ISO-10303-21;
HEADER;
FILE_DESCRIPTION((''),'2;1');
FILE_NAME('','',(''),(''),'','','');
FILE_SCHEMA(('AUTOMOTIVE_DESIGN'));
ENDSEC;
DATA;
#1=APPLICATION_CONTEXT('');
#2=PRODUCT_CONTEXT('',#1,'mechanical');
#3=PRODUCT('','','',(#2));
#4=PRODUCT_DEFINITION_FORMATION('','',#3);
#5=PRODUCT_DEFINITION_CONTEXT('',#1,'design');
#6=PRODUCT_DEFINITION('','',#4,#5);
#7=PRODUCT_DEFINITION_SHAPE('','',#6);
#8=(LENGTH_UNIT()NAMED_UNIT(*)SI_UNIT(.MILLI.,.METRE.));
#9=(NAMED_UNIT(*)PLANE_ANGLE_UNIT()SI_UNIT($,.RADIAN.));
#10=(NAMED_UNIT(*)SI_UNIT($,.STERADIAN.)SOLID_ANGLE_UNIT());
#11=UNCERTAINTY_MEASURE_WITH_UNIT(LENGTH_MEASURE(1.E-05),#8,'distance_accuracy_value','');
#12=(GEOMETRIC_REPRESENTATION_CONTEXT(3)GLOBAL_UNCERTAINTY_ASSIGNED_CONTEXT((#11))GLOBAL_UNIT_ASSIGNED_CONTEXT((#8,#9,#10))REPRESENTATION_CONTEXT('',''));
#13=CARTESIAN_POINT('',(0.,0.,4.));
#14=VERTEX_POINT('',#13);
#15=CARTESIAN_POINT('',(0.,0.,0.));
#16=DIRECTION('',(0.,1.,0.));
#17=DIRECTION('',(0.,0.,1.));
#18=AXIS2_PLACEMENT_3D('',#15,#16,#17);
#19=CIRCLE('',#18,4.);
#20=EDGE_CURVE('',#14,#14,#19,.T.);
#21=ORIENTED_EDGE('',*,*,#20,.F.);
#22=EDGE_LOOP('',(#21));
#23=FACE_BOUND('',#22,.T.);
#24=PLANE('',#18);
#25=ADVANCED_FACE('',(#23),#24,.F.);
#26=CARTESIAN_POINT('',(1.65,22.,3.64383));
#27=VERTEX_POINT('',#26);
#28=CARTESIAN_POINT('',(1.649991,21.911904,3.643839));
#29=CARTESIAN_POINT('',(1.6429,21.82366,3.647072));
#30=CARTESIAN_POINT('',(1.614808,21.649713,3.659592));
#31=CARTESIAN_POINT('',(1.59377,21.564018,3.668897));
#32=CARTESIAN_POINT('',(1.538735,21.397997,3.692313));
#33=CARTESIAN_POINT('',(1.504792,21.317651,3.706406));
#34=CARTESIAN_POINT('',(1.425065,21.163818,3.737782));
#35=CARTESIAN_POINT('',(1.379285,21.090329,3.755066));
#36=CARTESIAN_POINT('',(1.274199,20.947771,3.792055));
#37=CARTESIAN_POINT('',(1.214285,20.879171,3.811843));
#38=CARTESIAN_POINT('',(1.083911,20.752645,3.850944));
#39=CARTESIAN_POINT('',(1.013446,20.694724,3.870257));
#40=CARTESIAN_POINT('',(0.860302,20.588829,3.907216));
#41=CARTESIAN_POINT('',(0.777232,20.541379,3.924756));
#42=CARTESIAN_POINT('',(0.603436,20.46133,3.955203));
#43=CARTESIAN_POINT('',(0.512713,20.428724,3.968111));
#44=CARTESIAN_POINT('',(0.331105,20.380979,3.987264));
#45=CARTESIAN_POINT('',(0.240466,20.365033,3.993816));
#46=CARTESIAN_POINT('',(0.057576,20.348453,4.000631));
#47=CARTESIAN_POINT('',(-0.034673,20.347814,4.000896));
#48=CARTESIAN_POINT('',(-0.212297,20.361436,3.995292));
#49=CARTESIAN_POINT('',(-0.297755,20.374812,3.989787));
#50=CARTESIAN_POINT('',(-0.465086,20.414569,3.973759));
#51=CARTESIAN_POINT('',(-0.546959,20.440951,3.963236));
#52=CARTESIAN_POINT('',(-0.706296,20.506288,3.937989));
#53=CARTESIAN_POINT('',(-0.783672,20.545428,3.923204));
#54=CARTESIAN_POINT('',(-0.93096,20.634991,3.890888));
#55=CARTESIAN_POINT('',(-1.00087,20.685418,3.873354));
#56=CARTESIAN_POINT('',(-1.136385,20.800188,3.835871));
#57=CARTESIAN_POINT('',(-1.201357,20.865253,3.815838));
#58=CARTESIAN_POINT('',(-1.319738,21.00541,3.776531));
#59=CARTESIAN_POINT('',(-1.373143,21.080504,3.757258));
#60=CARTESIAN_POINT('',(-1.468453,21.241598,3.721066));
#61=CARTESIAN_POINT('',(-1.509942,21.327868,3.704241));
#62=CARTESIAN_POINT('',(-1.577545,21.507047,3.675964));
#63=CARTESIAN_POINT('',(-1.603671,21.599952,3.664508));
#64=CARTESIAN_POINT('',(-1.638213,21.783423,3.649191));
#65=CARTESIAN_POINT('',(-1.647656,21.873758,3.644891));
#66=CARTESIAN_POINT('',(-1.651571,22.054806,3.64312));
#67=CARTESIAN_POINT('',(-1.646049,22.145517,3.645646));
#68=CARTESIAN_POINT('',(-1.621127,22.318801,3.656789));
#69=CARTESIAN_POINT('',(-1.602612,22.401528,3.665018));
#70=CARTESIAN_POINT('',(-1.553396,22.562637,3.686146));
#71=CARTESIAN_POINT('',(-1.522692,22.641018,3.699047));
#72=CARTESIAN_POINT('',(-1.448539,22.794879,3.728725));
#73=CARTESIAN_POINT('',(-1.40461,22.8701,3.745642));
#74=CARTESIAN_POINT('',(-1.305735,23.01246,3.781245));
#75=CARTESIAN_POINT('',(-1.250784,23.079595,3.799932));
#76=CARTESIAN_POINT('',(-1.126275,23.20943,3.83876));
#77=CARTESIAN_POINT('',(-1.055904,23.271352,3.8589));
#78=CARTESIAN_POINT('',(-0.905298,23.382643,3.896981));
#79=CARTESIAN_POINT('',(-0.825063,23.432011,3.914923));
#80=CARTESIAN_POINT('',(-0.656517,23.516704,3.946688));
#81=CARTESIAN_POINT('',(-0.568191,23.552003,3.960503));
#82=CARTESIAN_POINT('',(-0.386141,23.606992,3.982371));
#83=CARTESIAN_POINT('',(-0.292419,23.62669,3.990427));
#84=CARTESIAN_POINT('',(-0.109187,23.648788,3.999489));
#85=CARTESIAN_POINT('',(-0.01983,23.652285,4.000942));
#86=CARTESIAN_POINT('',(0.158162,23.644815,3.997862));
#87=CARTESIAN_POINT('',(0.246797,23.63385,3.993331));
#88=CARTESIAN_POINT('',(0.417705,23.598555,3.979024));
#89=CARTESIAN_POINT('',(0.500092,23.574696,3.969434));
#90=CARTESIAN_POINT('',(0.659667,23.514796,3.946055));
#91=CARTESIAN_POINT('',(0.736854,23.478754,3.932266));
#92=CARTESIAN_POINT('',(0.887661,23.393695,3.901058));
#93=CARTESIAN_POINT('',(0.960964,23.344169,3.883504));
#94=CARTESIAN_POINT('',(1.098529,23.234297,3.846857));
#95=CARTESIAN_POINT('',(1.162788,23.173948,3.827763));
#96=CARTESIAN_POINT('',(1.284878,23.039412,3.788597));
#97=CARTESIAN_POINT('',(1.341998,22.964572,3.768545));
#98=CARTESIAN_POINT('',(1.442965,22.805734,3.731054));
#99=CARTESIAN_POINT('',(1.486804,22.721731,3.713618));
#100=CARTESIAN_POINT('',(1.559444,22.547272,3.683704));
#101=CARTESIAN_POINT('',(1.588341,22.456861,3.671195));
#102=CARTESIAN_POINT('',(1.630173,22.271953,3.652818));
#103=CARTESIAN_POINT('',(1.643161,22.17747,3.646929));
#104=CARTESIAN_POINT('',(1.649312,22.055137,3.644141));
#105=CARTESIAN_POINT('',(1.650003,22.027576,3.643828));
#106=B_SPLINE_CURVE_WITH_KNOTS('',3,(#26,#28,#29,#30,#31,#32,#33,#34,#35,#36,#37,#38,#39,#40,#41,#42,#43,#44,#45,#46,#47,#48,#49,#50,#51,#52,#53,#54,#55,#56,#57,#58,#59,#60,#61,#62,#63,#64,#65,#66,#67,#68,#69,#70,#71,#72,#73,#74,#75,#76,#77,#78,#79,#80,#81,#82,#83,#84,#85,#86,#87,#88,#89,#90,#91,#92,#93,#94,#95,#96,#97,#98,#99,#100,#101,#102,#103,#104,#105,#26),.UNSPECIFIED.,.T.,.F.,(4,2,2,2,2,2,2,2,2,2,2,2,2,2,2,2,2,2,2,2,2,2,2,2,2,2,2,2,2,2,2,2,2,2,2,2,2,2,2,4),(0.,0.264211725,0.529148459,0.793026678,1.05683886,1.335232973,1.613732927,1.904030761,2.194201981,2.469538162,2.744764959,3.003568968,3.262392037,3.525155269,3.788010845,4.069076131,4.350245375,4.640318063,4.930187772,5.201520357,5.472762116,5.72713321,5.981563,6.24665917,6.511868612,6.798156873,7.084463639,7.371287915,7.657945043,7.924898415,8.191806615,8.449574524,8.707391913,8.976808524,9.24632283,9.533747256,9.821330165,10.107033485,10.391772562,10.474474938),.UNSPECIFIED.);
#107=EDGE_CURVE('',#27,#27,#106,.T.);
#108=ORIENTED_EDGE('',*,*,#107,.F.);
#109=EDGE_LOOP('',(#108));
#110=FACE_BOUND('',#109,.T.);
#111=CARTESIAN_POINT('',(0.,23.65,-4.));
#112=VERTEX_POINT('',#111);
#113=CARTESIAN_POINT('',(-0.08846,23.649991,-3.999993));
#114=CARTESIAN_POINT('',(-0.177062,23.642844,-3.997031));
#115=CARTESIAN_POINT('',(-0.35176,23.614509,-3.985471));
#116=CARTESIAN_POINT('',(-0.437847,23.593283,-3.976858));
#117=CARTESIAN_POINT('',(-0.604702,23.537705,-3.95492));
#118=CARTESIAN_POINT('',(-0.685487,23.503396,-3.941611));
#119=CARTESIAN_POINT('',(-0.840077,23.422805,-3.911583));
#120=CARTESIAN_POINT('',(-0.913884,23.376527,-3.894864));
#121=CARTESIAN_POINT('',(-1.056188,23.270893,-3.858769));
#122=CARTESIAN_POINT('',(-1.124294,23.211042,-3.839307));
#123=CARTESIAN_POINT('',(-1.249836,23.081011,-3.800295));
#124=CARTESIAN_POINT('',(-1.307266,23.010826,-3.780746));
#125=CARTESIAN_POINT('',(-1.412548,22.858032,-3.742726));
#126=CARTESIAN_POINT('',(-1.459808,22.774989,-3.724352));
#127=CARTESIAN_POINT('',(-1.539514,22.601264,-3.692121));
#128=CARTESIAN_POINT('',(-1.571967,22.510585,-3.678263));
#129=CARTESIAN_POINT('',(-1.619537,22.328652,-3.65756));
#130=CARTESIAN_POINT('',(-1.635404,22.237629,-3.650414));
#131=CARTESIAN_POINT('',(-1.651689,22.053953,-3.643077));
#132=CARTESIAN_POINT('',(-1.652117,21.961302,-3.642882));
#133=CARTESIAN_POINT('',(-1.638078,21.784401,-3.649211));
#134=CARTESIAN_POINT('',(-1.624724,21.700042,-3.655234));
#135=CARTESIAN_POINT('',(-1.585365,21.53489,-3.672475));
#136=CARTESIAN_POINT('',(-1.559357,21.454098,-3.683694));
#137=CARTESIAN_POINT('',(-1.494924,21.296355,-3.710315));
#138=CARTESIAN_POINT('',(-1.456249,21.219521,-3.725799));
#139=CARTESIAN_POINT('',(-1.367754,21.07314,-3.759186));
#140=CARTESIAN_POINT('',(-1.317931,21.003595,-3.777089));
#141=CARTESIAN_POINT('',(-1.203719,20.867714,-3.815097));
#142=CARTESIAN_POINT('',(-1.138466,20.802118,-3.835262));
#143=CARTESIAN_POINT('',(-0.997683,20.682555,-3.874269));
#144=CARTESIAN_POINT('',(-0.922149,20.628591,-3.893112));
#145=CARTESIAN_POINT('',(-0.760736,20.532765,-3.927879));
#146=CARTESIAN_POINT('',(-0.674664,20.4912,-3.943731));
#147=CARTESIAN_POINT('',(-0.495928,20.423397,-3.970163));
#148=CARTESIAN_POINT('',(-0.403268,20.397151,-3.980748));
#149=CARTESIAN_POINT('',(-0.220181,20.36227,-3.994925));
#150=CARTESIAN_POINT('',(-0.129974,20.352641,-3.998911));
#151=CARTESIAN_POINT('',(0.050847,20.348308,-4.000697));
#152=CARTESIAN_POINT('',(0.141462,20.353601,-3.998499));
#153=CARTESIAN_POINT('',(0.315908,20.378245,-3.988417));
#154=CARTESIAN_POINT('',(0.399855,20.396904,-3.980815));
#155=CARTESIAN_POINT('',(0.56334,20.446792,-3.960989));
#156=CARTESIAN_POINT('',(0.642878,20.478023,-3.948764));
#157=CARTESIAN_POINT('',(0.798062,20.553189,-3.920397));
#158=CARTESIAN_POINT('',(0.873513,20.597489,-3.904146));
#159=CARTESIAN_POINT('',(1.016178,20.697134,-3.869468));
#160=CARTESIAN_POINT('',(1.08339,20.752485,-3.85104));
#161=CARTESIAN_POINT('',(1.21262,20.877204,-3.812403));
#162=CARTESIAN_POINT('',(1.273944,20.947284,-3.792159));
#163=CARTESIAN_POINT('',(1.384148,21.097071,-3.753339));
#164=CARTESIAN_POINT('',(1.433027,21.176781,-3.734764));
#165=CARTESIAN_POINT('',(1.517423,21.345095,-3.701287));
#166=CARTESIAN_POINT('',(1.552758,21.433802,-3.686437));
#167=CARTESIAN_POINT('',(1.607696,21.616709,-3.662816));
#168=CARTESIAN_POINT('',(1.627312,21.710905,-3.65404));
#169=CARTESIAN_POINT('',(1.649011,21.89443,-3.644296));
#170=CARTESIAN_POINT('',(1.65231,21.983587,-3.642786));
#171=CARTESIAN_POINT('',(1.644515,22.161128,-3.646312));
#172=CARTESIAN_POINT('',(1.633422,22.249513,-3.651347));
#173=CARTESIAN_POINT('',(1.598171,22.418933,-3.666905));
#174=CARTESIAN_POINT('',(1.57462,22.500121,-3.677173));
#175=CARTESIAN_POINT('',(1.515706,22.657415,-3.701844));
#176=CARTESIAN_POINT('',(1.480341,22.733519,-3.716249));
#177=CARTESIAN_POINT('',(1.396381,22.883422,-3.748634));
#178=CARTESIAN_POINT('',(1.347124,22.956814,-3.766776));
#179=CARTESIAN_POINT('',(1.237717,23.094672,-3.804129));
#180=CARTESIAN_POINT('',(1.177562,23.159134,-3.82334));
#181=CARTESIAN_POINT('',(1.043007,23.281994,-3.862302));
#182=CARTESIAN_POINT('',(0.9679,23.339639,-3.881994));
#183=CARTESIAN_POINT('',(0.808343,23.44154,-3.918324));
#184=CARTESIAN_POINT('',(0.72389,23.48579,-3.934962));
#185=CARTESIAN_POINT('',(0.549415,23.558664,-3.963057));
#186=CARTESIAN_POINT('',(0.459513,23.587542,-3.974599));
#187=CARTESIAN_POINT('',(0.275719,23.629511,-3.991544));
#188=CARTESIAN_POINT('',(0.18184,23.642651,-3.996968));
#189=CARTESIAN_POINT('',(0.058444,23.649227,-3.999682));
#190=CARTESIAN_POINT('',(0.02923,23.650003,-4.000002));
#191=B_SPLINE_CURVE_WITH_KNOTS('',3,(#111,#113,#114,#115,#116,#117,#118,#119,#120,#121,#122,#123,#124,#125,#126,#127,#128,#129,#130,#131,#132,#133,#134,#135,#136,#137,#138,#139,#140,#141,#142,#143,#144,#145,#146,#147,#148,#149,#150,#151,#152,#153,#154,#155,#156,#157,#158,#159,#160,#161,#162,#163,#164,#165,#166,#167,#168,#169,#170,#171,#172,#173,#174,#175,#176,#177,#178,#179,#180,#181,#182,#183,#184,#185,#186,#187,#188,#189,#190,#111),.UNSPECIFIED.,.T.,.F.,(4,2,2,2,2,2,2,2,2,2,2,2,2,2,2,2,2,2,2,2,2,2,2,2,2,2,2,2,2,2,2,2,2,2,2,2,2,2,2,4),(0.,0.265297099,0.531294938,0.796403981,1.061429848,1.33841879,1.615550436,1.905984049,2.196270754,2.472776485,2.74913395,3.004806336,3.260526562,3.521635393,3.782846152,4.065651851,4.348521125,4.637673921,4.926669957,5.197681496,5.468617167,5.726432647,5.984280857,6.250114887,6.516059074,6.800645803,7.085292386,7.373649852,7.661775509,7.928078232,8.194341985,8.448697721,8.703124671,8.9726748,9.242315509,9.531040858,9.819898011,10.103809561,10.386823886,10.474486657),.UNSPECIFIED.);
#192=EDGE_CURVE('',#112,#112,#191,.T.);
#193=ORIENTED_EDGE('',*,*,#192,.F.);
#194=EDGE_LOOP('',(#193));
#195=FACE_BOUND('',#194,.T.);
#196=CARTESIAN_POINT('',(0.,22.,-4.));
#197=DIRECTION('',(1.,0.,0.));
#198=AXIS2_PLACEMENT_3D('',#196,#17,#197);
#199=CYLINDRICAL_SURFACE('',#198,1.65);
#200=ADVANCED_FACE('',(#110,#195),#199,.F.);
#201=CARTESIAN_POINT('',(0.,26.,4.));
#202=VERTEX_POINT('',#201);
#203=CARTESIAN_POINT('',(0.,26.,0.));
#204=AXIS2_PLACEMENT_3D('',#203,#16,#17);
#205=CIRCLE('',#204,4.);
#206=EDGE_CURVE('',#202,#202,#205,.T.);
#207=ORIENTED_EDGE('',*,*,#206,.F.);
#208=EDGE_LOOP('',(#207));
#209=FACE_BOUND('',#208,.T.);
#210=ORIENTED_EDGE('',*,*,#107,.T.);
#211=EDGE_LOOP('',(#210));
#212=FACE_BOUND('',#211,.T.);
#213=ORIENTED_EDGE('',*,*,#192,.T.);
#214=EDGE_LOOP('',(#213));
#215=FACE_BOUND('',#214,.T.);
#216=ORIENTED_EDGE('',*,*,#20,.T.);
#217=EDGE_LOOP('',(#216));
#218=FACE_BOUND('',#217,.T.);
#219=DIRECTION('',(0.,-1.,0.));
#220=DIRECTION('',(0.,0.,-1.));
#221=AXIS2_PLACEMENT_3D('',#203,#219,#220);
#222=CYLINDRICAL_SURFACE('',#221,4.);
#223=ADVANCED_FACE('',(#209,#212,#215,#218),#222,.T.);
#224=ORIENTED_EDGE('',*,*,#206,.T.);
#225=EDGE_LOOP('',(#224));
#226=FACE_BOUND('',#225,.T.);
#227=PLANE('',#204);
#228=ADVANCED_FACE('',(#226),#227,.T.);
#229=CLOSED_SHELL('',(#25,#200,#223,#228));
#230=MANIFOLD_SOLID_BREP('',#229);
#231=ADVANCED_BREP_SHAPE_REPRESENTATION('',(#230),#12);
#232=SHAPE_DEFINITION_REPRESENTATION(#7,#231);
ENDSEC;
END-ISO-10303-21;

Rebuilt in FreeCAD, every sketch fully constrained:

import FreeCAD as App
import Part
import Sketcher

doc = App.newDocument("Part")
params = doc.addObject("Spreadsheet::Sheet", "Params")
for row, (alias, value) in enumerate([
    ("sketch1_diameter", "8 mm"),
    ("pad1_length", "26 mm"),
    ("sketch2_diameter", "3.3 mm"),
], start=1):
    params.set(f"A{row}", alias)
    params.set(f"B{row}", "=" + value)
    params.setAlias(f"B{row}", alias)

body = doc.addObject("PartDesign::Body", "Body")

sketch1 = body.newObject("Sketcher::SketchObject", "Sketch")
sketch1.AttachmentSupport = (doc.getObject("XZ_Plane"), [""])
sketch1.MapMode = "FlatFace"
sketch1.addGeometry(Part.Circle(App.Vector(0, 0, 0), App.Vector(0, 0, 1), 4), False)
sketch1.addConstraint([
    Sketcher.Constraint("Coincident", 0, 3, -1, 1),
    Sketcher.Constraint("Diameter", 0, 8.0),
])
sketch1.setExpression("Constraints[1]", "Params.sketch1_diameter")
pad1 = body.newObject("PartDesign::Pad", "Pad")
pad1.Profile = sketch1
pad1.setExpression("Length", "Params.pad1_length")
pad1.Reversed = True

sketch2 = body.newObject("Sketcher::SketchObject", "Sketch001")
sketch2.AttachmentSupport = (doc.getObject("XY_Plane"), [""])
sketch2.MapMode = "FlatFace"
sketch2.addGeometry(Part.Circle(App.Vector(0, 22, 0), App.Vector(0, 0, 1), 1.6), False)
sketch2.addConstraint([
    Sketcher.Constraint("PointOnObject", 0, 3, -2),
    Sketcher.Constraint("Diameter", 0, 3.3),
    Sketcher.Constraint("DistanceY", -1, 1, 0, 3, 22.0),
])
sketch2.setExpression("Constraints[1]", "Params.sketch2_diameter")
pocket1 = body.newObject("PartDesign::Pocket", "Pocket")
pocket1.Profile = sketch2
pocket1.Type = "ThroughAll"
pocket1.Midplane = True

doc.recompute()
